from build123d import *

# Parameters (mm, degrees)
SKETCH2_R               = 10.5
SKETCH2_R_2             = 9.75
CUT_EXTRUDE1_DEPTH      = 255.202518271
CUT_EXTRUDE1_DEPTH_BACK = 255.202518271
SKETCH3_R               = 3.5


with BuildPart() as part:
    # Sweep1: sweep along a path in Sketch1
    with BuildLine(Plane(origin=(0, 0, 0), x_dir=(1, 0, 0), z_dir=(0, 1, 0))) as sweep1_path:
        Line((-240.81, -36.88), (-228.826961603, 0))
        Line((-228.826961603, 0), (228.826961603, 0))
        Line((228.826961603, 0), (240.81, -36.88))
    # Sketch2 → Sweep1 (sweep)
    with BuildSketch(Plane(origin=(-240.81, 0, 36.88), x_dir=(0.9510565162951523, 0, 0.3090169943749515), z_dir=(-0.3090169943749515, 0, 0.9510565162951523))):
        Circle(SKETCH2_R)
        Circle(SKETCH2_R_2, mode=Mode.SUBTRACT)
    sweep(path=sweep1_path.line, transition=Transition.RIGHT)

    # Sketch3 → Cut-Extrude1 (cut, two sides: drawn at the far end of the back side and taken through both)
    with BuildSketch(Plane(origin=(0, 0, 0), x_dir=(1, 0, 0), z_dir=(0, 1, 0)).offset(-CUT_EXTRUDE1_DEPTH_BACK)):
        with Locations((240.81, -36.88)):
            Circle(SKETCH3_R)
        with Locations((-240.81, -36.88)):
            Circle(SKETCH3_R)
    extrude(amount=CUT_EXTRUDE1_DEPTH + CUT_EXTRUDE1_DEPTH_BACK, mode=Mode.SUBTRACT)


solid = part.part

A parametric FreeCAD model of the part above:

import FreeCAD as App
import Part
import Sketcher
Q = App.Units.Quantity

doc = App.newDocument("Part")
params = doc.addObject("Spreadsheet::Sheet", "Params")
for row, (alias, value) in enumerate([
    ("sketch1_diameter", "21 mm"),
    ("sketch1_diameter2", "19.5 mm"),
    ("sketch3_diameter", "7 mm"),
], start=1):
    params.set(f"A{row}", alias)
    params.set(f"B{row}", "=" + value)
    params.setAlias(f"B{row}", alias)

body = doc.addObject("PartDesign::Body", "Body")

sketch1 = doc.addObject("Sketcher::SketchObject", "Sketch")
body.addObject(sketch1)
sketch1.Placement = App.Placement(App.Vector(-240.81, 0, 36.88), App.Rotation(App.Vector(0.951056516, 0, 0.309016994), App.Vector(0, 0.999999999, 0), App.Vector(-0.309016994, 0, 0.951056516), "ZXY"))
sketch1.addGeometry([
    Part.Circle(App.Vector(0, 0, 0), App.Vector(0, 0, 1), 10.5),
    Part.Circle(App.Vector(0, 0, 0), App.Vector(0, 0, 1), 9.75),
], False)
sketch1.addConstraint([
    Sketcher.Constraint("Coincident", 0, 3, -1, 1),
    Sketcher.Constraint("Coincident", 1, 3, -1, 1),
    Sketcher.Constraint("Diameter", 0, 21.0),
    Sketcher.Constraint("Diameter", 1, 19.5),
])
sketch1.setExpression("Constraints[2]", "Params.sketch1_diameter")
sketch1.setExpression("Constraints[3]", "Params.sketch1_diameter2")

sketch2 = doc.addObject("Sketcher::SketchObject", "Sketch001")
body.addObject(sketch2)
sketch2.AttachmentSupport = (doc.XZ_Plane, [""])
sketch2.MapMode = "FlatFace"
sketch2.addGeometry([
    Part.LineSegment(App.Vector(-240.81, 36.88, 0), App.Vector(-228.826962, 0, 0)),
    Part.LineSegment(App.Vector(-228.826962, 0, 0), App.Vector(228.826962, 0, 0)),
    Part.LineSegment(App.Vector(228.826962, 0, 0), App.Vector(240.81, 36.88, 0)),
], False)
sketch2.addConstraint([
    Sketcher.Constraint("Coincident", 0, 2, 1, 1),
    Sketcher.Constraint("Coincident", 1, 2, 2, 1),
    Sketcher.Constraint("Horizontal", 1),
    Sketcher.Constraint("Symmetric", 0, 2, 1, 2, -1, 1),
    Sketcher.Constraint("Symmetric", 0, 1, 2, 2, -2),
    Sketcher.Constraint("Angle", 0, Q("-72 deg")),
    Sketcher.Constraint("DistanceX", 0, 1, -1, 1, 240.81),
    Sketcher.Constraint("DistanceY", -1, 1, 0, 1, 36.88),
])
doc.recompute()

additivepipe = doc.addObject("PartDesign::AdditivePipe", "AdditivePipe")
body.addObject(additivepipe)
additivepipe.Profile = sketch1
additivepipe.Spine = (sketch2, ["Edge1", "Edge2", "Edge3"])
additivepipe.Transition = "Right corner"

sketch3 = doc.addObject("Sketcher::SketchObject", "Sketch002")
body.addObject(sketch3)
sketch3.AttachmentSupport = (doc.XZ_Plane, [""])
sketch3.MapMode = "FlatFace"
sketch3.addGeometry([
    Part.Circle(App.Vector(240.81, 36.88, 0), App.Vector(0, 0, 1), 3.5),
    Part.Circle(App.Vector(-240.81, 36.88, 0), App.Vector(0, 0, 1), 3.5),
], False)
sketch3.addConstraint([
    Sketcher.Constraint("Equal", 0, 1),
    Sketcher.Constraint("Symmetric", 0, 3, 1, 3, -2),
    Sketcher.Constraint("Diameter", 0, 7.0),
    Sketcher.Constraint("DistanceX", -1, 1, 0, 3, 240.81),
    Sketcher.Constraint("DistanceY", -1, 1, 0, 3, 36.88),
])
sketch3.setExpression("Constraints[2]", "Params.sketch3_diameter")
pocket1 = doc.addObject("PartDesign::Pocket", "Pocket")
body.addObject(pocket1)
pocket1.Profile = sketch3
pocket1.Type = "ThroughAll"
pocket1.Midplane = True

doc.recompute()
